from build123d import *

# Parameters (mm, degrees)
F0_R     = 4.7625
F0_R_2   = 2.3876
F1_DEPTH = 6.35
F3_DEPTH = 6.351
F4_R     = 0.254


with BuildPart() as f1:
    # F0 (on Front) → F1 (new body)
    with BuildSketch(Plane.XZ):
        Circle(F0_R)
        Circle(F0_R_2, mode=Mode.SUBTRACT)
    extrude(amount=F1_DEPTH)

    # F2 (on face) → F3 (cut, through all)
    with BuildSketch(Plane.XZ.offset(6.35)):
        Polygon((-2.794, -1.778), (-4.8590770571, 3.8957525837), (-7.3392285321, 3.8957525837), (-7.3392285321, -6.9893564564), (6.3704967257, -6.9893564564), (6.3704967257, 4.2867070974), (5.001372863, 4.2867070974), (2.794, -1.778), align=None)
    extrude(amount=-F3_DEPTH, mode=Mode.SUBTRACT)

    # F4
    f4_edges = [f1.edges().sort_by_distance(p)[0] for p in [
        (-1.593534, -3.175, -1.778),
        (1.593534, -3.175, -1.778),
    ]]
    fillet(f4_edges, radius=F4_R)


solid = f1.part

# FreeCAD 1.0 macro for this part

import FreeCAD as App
import Part
import Sketcher
Q = App.Units.Quantity


def edges_at(feature, points):
    """Names of the edges that pass closest to the given points."""
    edges = feature.Shape.Edges
    near = lambda p: min(range(len(edges)), key=lambda i: edges[i].distToShape(Part.Vertex(*p))[0])
    return sorted({f"Edge{near(p) + 1}" for p in points})


def add_polygon(sketch, points):
    """Adds a closed chain of lines whose ends are joined by coincident constraints."""
    first, n = sketch.GeometryCount, len(points)
    for a, b in zip(points, points[1:] + points[:1]):
        sketch.addGeometry(Part.LineSegment(App.Vector(*a, 0), App.Vector(*b, 0)), False)
    for i in range(n):
        sketch.addConstraint(Sketcher.Constraint("Coincident", first + i, 2, first + (i + 1) % n, 1))

doc = App.newDocument("Part")
body = doc.addObject("PartDesign::Body", "Body")

# Sketch on XZ plane
sketch1 = body.newObject("Sketcher::SketchObject", "Sketch")
sketch1.AttachmentSupport = (doc.getObject("XZ_Plane"), [""])
sketch1.MapMode = "FlatFace"
sketch1.addGeometry(Part.Circle(App.Vector(0, 0, 0), App.Vector(0, 0, 1), 4.8), False)
sketch1.addGeometry(Part.Circle(App.Vector(0, 0, 0), App.Vector(0, 0, 1), 2.4), False)
sketch1.addConstraint(Sketcher.Constraint("Coincident", 0, 3, -1, 1))
sketch1.addConstraint(Sketcher.Constraint("Coincident", 1, 3, -1, 1))
sketch1.addConstraint(Sketcher.Constraint("Diameter", 0, Q("0.375 in")))
sketch1.addConstraint(Sketcher.Constraint("Diameter", 1, Q("0.188 in")))
pad1 = body.newObject("PartDesign::Pad", "Pad")
pad1.Profile = sketch1
pad1.Length = Q("0.25 in")

# Sketch on XZ plane
sketch2 = body.newObject("Sketcher::SketchObject", "Sketch001")
sketch2.AttachmentSupport = (doc.getObject("XZ_Plane"), [""])
sketch2.MapMode = "FlatFace"
sketch2.AttachmentOffset = App.Placement(App.Vector(0, 0, 0.25 * 25.4), App.Rotation())
add_polygon(sketch2, [(-2.8, -1.8), (-4.9, 3.9), (-7.3, 3.9), (-7.3, -7), (6.4, -7), (6.4, 4.3), (5, 4.3), (2.8, -1.8)])  # lines 0-7
sketch2.addConstraint(Sketcher.Constraint("Horizontal", 1))
sketch2.addConstraint(Sketcher.Constraint("Vertical", 2))
sketch2.addConstraint(Sketcher.Constraint("Horizontal", 3))
sketch2.addConstraint(Sketcher.Constraint("Vertical", 4))
sketch2.addConstraint(Sketcher.Constraint("Horizontal", 5))
sketch2.addConstraint(Sketcher.Constraint("Horizontal", 7))
sketch2.addConstraint(Sketcher.Constraint("Angle", 0, Q("110 deg")))
sketch2.addConstraint(Sketcher.Constraint("Angle", 6, Q("-110 deg")))
sketch2.addConstraint(Sketcher.Constraint("DistanceX", 7, 2, 7, 1, Q("0.22 in")))
sketch2.addConstraint(Sketcher.Constraint("DistanceX", -1, 1, 6, 2, Q("0.11 in")))
sketch2.addConstraint(Sketcher.Constraint("DistanceY", 6, 2, -1, 1, Q("0.07 in")))
sketch2.addConstraint(Sketcher.Constraint("DistanceX", 1, 2, 1, 1, 2.480151))
sketch2.addConstraint(Sketcher.Constraint("DistanceY", 2, 2, 2, 1, 10.885109))
sketch2.addConstraint(Sketcher.Constraint("DistanceX", 1, 2, 5, 2, 12.340601))
sketch2.addConstraint(Sketcher.Constraint("Distance", 0, 6.037881))
sketch2.addConstraint(Sketcher.Constraint("DistanceX", 3, 1, 3, 2, 13.709725))
pocket1 = body.newObject("PartDesign::Pocket", "Pocket")
pocket1.Profile = sketch2
pocket1.Type = "ThroughAll"
doc.recompute()

fillet = body.newObject("PartDesign::Fillet", "Fillet")
fillet.Base = (pocket1, edges_at(pocket1, [(-1.594, -3.175, -1.778), (1.594, -3.175, -1.778)]))
fillet.Radius = Q("0.01 in")

doc.recompute()
